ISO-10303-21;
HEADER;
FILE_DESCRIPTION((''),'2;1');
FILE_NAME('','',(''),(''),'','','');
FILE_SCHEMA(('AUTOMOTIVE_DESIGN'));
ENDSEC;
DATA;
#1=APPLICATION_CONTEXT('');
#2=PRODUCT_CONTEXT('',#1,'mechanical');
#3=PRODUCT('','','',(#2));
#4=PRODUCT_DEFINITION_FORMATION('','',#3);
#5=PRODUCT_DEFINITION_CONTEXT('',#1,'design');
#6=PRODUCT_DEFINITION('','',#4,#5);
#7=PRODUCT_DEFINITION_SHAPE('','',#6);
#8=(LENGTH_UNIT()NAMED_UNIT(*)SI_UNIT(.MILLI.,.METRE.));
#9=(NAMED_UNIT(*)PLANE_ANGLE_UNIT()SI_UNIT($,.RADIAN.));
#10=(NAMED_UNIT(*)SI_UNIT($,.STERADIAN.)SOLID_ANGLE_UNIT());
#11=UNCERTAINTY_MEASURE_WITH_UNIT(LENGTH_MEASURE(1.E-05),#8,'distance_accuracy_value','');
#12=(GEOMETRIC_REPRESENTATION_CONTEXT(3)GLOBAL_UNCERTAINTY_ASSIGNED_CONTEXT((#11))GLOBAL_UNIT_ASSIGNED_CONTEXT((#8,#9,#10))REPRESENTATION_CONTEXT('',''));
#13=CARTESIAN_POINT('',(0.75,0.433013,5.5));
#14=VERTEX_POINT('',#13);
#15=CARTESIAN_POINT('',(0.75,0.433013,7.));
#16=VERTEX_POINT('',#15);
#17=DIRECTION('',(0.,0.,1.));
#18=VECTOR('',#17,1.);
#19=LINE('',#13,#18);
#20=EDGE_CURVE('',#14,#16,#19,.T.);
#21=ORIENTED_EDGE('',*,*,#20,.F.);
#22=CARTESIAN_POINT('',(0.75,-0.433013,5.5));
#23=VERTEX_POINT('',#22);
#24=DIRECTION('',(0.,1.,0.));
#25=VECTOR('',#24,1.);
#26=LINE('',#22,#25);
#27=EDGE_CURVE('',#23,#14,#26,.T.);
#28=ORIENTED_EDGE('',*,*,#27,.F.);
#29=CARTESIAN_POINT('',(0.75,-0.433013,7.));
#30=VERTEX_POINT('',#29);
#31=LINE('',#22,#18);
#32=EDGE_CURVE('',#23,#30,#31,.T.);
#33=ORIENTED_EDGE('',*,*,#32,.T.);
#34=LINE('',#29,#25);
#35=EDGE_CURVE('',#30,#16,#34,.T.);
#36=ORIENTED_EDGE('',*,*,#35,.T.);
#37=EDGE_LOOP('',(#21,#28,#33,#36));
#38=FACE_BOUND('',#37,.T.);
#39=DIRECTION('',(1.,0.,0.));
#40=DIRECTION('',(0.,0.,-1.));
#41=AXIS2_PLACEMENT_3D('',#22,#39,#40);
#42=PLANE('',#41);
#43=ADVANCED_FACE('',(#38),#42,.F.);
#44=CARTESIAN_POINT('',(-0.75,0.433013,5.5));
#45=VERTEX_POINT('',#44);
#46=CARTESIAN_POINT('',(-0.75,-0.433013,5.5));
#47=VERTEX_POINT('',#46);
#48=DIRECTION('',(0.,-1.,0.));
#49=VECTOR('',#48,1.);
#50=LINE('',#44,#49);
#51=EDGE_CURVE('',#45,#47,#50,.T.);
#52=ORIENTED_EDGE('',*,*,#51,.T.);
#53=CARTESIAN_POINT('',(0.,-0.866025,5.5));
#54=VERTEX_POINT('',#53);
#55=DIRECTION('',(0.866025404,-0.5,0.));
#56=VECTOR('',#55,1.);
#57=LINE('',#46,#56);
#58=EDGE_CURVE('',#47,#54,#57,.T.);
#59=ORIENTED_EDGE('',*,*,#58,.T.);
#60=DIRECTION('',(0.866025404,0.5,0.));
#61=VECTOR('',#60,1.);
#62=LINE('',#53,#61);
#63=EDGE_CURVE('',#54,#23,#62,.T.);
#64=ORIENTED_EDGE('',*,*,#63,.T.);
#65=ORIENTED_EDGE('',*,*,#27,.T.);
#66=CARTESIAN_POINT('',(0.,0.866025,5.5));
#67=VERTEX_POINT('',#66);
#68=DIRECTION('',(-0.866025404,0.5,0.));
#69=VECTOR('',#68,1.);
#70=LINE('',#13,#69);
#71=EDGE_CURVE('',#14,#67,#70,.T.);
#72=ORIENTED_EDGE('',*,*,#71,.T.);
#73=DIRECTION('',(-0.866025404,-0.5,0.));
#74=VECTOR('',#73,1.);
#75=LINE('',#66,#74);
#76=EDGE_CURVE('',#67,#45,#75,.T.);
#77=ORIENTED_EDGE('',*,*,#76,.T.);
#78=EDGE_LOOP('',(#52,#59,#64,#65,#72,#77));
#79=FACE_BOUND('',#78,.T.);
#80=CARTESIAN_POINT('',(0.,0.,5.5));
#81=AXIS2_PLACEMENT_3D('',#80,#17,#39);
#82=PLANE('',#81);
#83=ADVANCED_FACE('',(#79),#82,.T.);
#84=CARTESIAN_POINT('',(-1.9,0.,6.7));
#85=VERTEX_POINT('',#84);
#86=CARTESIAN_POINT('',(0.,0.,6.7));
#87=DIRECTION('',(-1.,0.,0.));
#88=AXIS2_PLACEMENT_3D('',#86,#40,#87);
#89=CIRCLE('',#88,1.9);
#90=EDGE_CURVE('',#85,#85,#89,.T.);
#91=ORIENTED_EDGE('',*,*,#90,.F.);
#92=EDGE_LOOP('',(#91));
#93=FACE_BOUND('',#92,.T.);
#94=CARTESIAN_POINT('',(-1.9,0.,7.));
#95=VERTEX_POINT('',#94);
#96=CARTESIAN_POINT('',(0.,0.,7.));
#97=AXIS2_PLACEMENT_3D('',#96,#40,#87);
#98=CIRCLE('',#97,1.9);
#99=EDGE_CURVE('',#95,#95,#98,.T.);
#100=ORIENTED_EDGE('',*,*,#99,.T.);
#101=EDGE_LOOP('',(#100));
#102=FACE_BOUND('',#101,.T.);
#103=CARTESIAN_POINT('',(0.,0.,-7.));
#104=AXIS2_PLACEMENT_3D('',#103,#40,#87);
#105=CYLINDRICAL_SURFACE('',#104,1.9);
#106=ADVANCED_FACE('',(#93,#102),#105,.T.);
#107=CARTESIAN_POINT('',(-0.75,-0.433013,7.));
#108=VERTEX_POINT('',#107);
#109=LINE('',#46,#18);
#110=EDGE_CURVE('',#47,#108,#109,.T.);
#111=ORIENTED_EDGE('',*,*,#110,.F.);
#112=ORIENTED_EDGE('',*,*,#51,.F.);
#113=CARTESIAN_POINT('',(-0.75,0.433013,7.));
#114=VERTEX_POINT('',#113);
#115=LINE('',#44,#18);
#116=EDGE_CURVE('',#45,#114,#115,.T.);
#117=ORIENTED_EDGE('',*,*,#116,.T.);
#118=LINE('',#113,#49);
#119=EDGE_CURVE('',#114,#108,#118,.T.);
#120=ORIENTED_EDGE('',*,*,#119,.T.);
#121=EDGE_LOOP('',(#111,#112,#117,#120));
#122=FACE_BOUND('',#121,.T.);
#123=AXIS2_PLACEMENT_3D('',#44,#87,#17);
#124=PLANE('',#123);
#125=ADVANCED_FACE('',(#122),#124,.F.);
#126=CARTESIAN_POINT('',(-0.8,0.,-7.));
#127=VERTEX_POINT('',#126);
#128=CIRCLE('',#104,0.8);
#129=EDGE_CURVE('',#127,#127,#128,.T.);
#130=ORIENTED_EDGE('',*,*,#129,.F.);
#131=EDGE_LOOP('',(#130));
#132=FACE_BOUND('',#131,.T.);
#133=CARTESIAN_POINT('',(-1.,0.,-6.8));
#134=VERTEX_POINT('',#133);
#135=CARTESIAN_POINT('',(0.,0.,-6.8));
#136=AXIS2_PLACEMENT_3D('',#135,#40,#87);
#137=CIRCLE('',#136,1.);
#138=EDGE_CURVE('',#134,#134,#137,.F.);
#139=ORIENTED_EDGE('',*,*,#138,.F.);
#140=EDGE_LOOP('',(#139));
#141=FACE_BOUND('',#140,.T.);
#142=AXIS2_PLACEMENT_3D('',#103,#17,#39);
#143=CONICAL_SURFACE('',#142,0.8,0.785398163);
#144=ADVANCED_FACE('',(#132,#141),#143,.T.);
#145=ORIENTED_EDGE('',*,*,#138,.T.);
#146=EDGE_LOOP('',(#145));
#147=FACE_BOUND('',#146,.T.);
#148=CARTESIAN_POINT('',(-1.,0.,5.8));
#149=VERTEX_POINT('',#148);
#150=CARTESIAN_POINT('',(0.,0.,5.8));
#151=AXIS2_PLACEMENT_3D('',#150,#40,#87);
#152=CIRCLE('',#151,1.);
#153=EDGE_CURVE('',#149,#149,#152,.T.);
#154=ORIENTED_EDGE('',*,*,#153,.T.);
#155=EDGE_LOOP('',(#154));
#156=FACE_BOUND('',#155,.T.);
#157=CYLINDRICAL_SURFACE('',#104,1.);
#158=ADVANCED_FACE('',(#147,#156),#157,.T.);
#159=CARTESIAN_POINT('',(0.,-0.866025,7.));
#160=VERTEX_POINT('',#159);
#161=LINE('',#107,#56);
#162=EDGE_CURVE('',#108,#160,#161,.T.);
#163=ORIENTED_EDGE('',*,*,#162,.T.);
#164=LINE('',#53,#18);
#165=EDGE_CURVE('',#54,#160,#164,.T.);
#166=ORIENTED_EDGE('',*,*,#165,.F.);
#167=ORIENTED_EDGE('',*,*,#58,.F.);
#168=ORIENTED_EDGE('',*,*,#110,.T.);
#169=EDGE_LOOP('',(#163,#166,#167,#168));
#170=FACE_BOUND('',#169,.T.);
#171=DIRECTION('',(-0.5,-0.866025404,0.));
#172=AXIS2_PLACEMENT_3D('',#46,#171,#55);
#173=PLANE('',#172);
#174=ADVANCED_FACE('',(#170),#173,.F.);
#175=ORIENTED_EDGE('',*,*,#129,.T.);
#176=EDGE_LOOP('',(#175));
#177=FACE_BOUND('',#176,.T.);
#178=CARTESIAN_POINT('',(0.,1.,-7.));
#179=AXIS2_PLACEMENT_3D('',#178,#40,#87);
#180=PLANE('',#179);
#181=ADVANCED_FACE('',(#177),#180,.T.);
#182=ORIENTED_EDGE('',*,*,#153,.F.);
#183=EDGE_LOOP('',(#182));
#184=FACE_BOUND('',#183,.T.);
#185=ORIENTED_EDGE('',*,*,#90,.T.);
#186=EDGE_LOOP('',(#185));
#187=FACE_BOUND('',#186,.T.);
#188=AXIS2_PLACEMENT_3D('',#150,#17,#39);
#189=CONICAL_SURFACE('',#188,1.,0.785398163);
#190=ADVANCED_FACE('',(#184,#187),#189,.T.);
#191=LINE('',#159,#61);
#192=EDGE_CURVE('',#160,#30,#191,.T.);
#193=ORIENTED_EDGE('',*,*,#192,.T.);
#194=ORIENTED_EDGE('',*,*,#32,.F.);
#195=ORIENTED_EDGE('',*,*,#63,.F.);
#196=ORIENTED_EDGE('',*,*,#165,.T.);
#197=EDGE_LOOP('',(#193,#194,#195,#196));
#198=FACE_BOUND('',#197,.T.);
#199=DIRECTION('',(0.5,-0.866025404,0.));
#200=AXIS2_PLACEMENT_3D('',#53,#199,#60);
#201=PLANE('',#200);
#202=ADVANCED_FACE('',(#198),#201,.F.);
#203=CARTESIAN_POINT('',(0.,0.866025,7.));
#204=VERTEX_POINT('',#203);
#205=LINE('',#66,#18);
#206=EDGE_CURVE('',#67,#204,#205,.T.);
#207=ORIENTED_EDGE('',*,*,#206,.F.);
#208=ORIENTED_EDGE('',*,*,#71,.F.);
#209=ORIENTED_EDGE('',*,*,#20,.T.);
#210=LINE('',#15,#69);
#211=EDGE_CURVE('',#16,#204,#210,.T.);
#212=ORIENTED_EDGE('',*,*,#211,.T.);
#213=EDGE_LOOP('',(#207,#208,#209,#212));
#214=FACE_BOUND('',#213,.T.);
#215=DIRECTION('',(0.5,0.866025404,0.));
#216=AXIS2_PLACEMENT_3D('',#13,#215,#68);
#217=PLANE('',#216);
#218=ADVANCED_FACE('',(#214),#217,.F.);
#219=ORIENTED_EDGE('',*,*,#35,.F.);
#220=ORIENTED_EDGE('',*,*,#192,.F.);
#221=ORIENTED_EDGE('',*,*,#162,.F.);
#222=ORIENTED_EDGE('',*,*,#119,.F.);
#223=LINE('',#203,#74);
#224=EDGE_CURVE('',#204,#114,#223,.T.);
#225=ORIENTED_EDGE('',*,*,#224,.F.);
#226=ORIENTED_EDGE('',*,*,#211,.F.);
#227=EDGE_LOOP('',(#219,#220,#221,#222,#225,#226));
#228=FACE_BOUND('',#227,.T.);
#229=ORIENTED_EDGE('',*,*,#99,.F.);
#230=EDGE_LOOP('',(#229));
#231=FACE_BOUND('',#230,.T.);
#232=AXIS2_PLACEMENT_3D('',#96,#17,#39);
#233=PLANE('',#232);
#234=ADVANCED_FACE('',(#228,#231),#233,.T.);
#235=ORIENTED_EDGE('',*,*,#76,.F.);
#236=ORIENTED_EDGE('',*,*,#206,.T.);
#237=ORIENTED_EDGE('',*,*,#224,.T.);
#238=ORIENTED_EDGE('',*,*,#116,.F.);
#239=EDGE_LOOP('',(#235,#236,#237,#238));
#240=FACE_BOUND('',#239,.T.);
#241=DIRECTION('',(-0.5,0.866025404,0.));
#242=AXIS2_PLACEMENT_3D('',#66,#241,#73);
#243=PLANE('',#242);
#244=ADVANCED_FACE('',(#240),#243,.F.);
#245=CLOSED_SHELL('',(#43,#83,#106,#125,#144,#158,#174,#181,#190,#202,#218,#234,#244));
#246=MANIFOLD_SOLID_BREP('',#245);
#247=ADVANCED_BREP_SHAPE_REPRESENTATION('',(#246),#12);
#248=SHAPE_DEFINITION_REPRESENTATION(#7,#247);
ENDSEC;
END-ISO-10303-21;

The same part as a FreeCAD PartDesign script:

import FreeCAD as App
import Part
import Sketcher
Q = App.Units.Quantity


def edges_at(feature, points):
    """Names of the edges that pass closest to the given points."""
    edges = feature.Shape.Edges
    near = lambda p: min(range(len(edges)), key=lambda i: edges[i].distToShape(Part.Vertex(*p))[0])
    return sorted({f"Edge{near(p) + 1}" for p in points})

doc = App.newDocument("Part")
params = doc.addObject("Spreadsheet::Sheet", "Params")
for row, (alias, value) in enumerate([
    ("sketch1_width", "1 mm"),
    ("sketch1_height", "14 mm"),
    ("sketch1_width2", "1.9 mm"),
    ("sketch1_height2", "12.8 mm"),
    ("revolution_angle", "360 deg"),
    ("pocket1_length", "1.5 mm"),
    ("chamfer_size", "0.2 mm"),
], start=1):
    params.set(f"A{row}", alias)
    params.set(f"B{row}", "=" + value)
    params.setAlias(f"B{row}", alias)

body = doc.addObject("PartDesign::Body", "Body")

sketch1 = body.newObject("Sketcher::SketchObject", "Sketch")
sketch1.AttachmentSupport = (doc.getObject("YZ_Plane"), [""])
sketch1.MapMode = "FlatFace"
sketch1.addGeometry(Part.LineSegment(App.Vector(0, 7, 0), App.Vector(0, -7, 0)), False)
sketch1.addGeometry(Part.LineSegment(App.Vector(0, -7, 0), App.Vector(1, -7, 0)), False)
sketch1.addGeometry(Part.LineSegment(App.Vector(1, -7, 0), App.Vector(1, 5.8, 0)), False)
sketch1.addGeometry(Part.LineSegment(App.Vector(1, 5.8, 0), App.Vector(1.9, 6.7, 0)), False)
sketch1.addGeometry(Part.LineSegment(App.Vector(1.9, 6.7, 0), App.Vector(1.9, 7, 0)), False)
sketch1.addGeometry(Part.LineSegment(App.Vector(1.9, 7, 0), App.Vector(0, 7, 0)), False)
sketch1.addConstraint(Sketcher.Constraint("Coincident", 0, 2, 1, 1))
sketch1.addConstraint(Sketcher.Constraint("Coincident", 1, 2, 2, 1))
sketch1.addConstraint(Sketcher.Constraint("Coincident", 2, 2, 3, 1))
sketch1.addConstraint(Sketcher.Constraint("Coincident", 3, 2, 4, 1))
sketch1.addConstraint(Sketcher.Constraint("Coincident", 4, 2, 5, 1))
sketch1.addConstraint(Sketcher.Constraint("Coincident", 5, 2, 0, 1))
sketch1.addConstraint(Sketcher.Constraint("Vertical", 0))
sketch1.addConstraint(Sketcher.Constraint("Horizontal", 1))
sketch1.addConstraint(Sketcher.Constraint("Vertical", 2))
sketch1.addConstraint(Sketcher.Constraint("Vertical", 4))
sketch1.addConstraint(Sketcher.Constraint("Horizontal", 5))
sketch1.addConstraint(Sketcher.Constraint("Symmetric", 0, 2, 5, 2, -1, 1))
sketch1.addConstraint(Sketcher.Constraint("DistanceX", 1, 1, 1, 2, 1.0))
sketch1.addConstraint(Sketcher.Constraint("DistanceY", 0, 2, 0, 1, 14.0))
sketch1.addConstraint(Sketcher.Constraint("Angle", 3, Q("45 deg")))
sketch1.addConstraint(Sketcher.Constraint("DistanceX", 5, 2, 5, 1, 1.9))
sketch1.addConstraint(Sketcher.Constraint("DistanceY", 2, 1, 2, 2, 12.8))
sketch1.setExpression("Constraints[12]", "Params.sketch1_width")
sketch1.setExpression("Constraints[13]", "Params.sketch1_height")
sketch1.setExpression("Constraints[15]", "Params.sketch1_width2")
sketch1.setExpression("Constraints[16]", "Params.sketch1_height2")
revolution = body.newObject("PartDesign::Revolution", "Revolution")
revolution.Profile = sketch1
revolution.ReferenceAxis = (sketch1, ["V_Axis"])
revolution.setExpression("Angle", "Params.revolution_angle")

sketch2 = body.newObject("Sketcher::SketchObject", "Sketch001")
sketch2.AttachmentSupport = (doc.getObject("XY_Plane"), [""])
sketch2.MapMode = "FlatFace"
sketch2.AttachmentOffset = App.Placement(App.Vector(0, 0, 7), App.Rotation())
sketch2.addGeometry(Part.LineSegment(App.Vector(0, 0.9, 0), App.Vector(-0.8, 0.4, 0)), False)
sketch2.addGeometry(Part.LineSegment(App.Vector(-0.8, 0.4, 0), App.Vector(-0.8, -0.4, 0)), False)
sketch2.addGeometry(Part.LineSegment(App.Vector(-0.8, -0.4, 0), App.Vector(0, -0.9, 0)), False)
sketch2.addGeometry(Part.LineSegment(App.Vector(0, -0.9, 0), App.Vector(0.8, -0.4, 0)), False)
sketch2.addGeometry(Part.LineSegment(App.Vector(0.8, -0.4, 0), App.Vector(0.8, 0.4, 0)), False)
sketch2.addGeometry(Part.LineSegment(App.Vector(0.8, 0.4, 0), App.Vector(0, 0.9, 0)), False)
sketch2.addConstraint(Sketcher.Constraint("Coincident", 0, 2, 1, 1))
sketch2.addConstraint(Sketcher.Constraint("Coincident", 1, 2, 2, 1))
sketch2.addConstraint(Sketcher.Constraint("Coincident", 2, 2, 3, 1))
sketch2.addConstraint(Sketcher.Constraint("Coincident", 3, 2, 4, 1))
sketch2.addConstraint(Sketcher.Constraint("Coincident", 4, 2, 5, 1))
sketch2.addConstraint(Sketcher.Constraint("Coincident", 5, 2, 0, 1))
sketch2.addConstraint(Sketcher.Constraint("Vertical", 1))
sketch2.addConstraint(Sketcher.Constraint("Vertical", 4))
sketch2.addConstraint(Sketcher.Constraint("Symmetric", 0, 2, 3, 2, -1, 1))
sketch2.addConstraint(Sketcher.Constraint("Symmetric", 2, 2, 5, 2, -1, 1))
sketch2.addConstraint(Sketcher.Constraint("PointOnObject", 2, 2, -2))
sketch2.addConstraint(Sketcher.Constraint("Parallel", 2, 5))
sketch2.addConstraint(Sketcher.Constraint("Horizontal", 1, 2, 3, 2))
sketch2.addConstraint(Sketcher.Constraint("Angle", 0, Q("-150 deg")))
sketch2.addConstraint(Sketcher.Constraint("DistanceX", 1, 2, 3, 2, 1.5))
sketch2.addConstraint(Sketcher.Constraint("DistanceY", 1, 2, 1, 1, 0.866025))
pocket1 = body.newObject("PartDesign::Pocket", "Pocket")
pocket1.Profile = sketch2
pocket1.setExpression("Length", "Params.pocket1_length")
doc.recompute()

chamfer = body.newObject("PartDesign::Chamfer", "Chamfer")
chamfer.Base = (pocket1, edges_at(pocket1, [(1, 0, -7)]))
chamfer.setExpression("Size", "Params.chamfer_size")

doc.recompute()
